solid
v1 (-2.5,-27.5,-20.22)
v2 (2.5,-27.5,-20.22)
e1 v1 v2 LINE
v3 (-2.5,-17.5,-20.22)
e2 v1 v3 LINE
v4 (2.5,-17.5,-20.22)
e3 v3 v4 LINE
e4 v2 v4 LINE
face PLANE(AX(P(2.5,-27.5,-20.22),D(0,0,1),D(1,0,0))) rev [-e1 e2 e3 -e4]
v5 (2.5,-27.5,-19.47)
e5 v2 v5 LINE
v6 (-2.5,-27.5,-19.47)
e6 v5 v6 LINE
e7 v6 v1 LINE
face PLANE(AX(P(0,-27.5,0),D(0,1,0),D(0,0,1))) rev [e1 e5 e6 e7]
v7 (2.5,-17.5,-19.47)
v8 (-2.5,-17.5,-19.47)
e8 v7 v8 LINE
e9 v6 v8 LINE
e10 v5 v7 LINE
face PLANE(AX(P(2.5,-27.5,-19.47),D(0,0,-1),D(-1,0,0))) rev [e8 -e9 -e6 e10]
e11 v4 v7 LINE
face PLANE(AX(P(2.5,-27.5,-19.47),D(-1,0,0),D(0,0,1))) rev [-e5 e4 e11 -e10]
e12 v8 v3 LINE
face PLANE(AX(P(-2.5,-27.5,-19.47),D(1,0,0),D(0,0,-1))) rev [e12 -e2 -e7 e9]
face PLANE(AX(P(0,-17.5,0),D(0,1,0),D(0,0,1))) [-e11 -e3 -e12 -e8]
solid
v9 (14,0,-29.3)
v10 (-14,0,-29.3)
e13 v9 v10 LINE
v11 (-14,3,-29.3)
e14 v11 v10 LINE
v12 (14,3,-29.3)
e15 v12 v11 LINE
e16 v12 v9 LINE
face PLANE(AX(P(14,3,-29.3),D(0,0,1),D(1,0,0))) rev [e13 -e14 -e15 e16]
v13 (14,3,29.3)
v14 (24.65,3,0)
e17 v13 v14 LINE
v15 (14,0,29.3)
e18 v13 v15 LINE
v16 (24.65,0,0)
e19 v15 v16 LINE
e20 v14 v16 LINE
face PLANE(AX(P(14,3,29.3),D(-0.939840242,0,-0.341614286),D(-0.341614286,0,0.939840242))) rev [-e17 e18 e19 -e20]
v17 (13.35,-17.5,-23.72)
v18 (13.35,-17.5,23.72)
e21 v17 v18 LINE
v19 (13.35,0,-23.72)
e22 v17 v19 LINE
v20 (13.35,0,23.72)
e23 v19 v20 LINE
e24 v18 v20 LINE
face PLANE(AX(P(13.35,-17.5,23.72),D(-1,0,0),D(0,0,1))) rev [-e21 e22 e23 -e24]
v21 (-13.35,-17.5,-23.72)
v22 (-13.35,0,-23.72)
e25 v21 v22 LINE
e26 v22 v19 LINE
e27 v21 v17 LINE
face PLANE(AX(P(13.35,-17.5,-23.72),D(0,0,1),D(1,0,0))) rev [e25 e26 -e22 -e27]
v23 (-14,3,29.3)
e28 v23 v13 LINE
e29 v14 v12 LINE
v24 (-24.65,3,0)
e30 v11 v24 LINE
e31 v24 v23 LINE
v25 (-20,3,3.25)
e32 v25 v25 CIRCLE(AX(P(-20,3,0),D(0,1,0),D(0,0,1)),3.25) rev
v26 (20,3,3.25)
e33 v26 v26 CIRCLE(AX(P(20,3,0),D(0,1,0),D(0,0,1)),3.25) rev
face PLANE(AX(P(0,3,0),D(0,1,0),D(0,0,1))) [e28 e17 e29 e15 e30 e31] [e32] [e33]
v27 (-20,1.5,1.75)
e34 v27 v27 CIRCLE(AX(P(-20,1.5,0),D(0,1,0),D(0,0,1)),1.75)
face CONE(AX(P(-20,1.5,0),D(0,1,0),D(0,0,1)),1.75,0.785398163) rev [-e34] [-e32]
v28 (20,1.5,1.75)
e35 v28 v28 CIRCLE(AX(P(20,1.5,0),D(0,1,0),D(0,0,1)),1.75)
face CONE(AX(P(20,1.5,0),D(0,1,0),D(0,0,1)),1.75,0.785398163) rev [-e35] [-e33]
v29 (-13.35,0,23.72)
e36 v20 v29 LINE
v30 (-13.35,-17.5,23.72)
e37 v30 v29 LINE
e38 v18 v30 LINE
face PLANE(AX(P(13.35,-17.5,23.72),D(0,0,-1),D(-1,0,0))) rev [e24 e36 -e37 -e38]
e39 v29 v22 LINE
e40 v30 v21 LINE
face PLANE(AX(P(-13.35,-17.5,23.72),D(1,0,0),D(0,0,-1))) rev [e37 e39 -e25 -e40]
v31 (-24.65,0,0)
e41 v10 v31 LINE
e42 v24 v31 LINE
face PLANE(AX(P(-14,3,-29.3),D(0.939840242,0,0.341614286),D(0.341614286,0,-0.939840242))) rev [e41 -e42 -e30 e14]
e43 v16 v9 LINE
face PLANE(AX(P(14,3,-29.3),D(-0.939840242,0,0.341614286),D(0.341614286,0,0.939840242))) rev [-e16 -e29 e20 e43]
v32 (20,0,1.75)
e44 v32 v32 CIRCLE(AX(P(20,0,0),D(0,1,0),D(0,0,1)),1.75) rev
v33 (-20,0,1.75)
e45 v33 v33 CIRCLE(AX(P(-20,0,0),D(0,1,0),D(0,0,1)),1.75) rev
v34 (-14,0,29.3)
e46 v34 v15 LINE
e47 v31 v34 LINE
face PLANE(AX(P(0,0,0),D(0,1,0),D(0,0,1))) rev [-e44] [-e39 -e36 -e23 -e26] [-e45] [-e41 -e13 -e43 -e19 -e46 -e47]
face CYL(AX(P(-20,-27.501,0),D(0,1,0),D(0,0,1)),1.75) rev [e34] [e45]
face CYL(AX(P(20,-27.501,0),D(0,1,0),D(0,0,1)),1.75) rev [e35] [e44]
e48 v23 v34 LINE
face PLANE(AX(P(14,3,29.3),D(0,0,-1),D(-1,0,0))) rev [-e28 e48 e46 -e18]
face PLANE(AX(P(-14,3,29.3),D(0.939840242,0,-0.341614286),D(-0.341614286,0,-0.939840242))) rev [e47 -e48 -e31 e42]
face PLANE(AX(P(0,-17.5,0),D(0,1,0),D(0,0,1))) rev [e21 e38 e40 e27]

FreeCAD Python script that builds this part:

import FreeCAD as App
import Part
import Sketcher
Q = App.Units.Quantity


def edges_at(feature, points):
    """Names of the edges that pass closest to the given points."""
    edges = feature.Shape.Edges
    near = lambda p: min(range(len(edges)), key=lambda i: edges[i].distToShape(Part.Vertex(*p))[0])
    return sorted({f"Edge{near(p) + 1}" for p in points})

doc = App.newDocument("Part")
params = doc.addObject("Spreadsheet::Sheet", "Params")
for row, (alias, value) in enumerate([
    ("sketch1_width", "28 mm"),
    ("pad1_length", "3 mm"),
    ("sketch2_width", "26.7 mm"),
    ("sketch2_height", "47.44 mm"),
    ("pad2_length", "17.5 mm"),
    ("sketch3_diameter", "3.5 mm"),
    ("pocket1_length", "3 mm"),
    ("chamfer_size", "1.5 mm"),
    ("sketch4_width", "5 mm"),
    ("sketch4_height", "0.75 mm"),
    ("pad3_length", "10 mm"),
], start=1):
    params.set(f"A{row}", alias)
    params.set(f"B{row}", "=" + value)
    params.setAlias(f"B{row}", alias)

body = doc.addObject("PartDesign::Body", "Body")

# Sketch on XZ plane
sketch1 = body.newObject("Sketcher::SketchObject", "Sketch")
sketch1.AttachmentSupport = (doc.getObject("XZ_Plane"), [""])
sketch1.MapMode = "FlatFace"
sketch1.addGeometry([
    Part.LineSegment(App.Vector(14, -29.3, 0), App.Vector(-14, -29.3, 0)),  # 0
    Part.LineSegment(App.Vector(-14, -29.3, 0), App.Vector(-24.65, 0, 0)),  # 1
    Part.LineSegment(App.Vector(-24.65, 0, 0), App.Vector(-14, 29.3, 0)),  # 2
    Part.LineSegment(App.Vector(-14, 29.3, 0), App.Vector(14, 29.3, 0)),  # 3
    Part.LineSegment(App.Vector(14, 29.3, 0), App.Vector(24.65, 0, 0)),  # 4
    Part.LineSegment(App.Vector(24.65, 0, 0), App.Vector(14, -29.3, 0)),  # 5
], False)
sketch1.addConstraint([
    Sketcher.Constraint("Coincident", 0, 2, 1, 1),
    Sketcher.Constraint("Coincident", 1, 2, 2, 1),
    Sketcher.Constraint("Coincident", 2, 2, 3, 1),
    Sketcher.Constraint("Coincident", 3, 2, 4, 1),
    Sketcher.Constraint("Coincident", 4, 2, 5, 1),
    Sketcher.Constraint("Coincident", 5, 2, 0, 1),
    Sketcher.Constraint("Horizontal", 0),
    Sketcher.Constraint("Horizontal", 3),
    Sketcher.Constraint("Symmetric", 0, 2, 3, 2, -1, 1),
    Sketcher.Constraint("Symmetric", 1, 2, 4, 2, -1, 1),
    Sketcher.Constraint("PointOnObject", 1, 2, -1),
    Sketcher.Constraint("Parallel", 2, 5),
    Sketcher.Constraint("Vertical", 0, 2, 2, 2),
    Sketcher.Constraint("DistanceX", 0, 2, 0, 1, Q("28 mm")),
    Sketcher.Constraint("DistanceY", 0, 2, -1, 1, Q("29.3 mm")),
    Sketcher.Constraint("DistanceX", 1, 2, 4, 2, Q("49.3 mm")),
])
sketch1.setExpression("Constraints[13]", "Params.sketch1_width")
pad1 = body.newObject("PartDesign::Pad", "Pad")
pad1.Profile = sketch1
pad1.setExpression("Length", "Params.pad1_length")
pad1.Reversed = True

# Sketch on XZ plane
sketch2 = body.newObject("Sketcher::SketchObject", "Sketch001")
sketch2.AttachmentSupport = (doc.getObject("XZ_Plane"), [""])
sketch2.MapMode = "FlatFace"
sketch2.addGeometry([
    Part.LineSegment(App.Vector(-13.35, 23.72, 0), App.Vector(-13.35, -23.72, 0)),
    Part.LineSegment(App.Vector(-13.35, -23.72, 0), App.Vector(13.35, -23.72, 0)),
    Part.LineSegment(App.Vector(13.35, -23.72, 0), App.Vector(13.35, 23.72, 0)),
    Part.LineSegment(App.Vector(13.35, 23.72, 0), App.Vector(-13.35, 23.72, 0)),
], False)
sketch2.addConstraint([
    Sketcher.Constraint("Coincident", 0, 2, 1, 1),
    Sketcher.Constraint("Coincident", 1, 2, 2, 1),
    Sketcher.Constraint("Coincident", 2, 2, 3, 1),
    Sketcher.Constraint("Coincident", 3, 2, 0, 1),
    Sketcher.Constraint("Vertical", 0),
    Sketcher.Constraint("Horizontal", 1),
    Sketcher.Constraint("Vertical", 2),
    Sketcher.Constraint("Horizontal", 3),
    Sketcher.Constraint("Symmetric", 0, 2, 2, 2, -1, 1),
    Sketcher.Constraint("DistanceX", 1, 1, 1, 2, Q("26.7 mm")),
    Sketcher.Constraint("DistanceY", 0, 2, 0, 1, Q("47.44 mm")),
])
sketch2.setExpression("Constraints[9]", "Params.sketch2_width")
sketch2.setExpression("Constraints[10]", "Params.sketch2_height")
pad2 = body.newObject("PartDesign::Pad", "Pad001")
pad2.Profile = sketch2
pad2.setExpression("Length", "Params.pad2_length")

# Sketch on XZ plane
sketch3 = body.newObject("Sketcher::SketchObject", "Sketch002")
sketch3.AttachmentSupport = (doc.getObject("XZ_Plane"), [""])
sketch3.MapMode = "FlatFace"
sketch3.AttachmentOffset = App.Placement(App.Vector(0, 0, -3), App.Rotation())
sketch3.addGeometry([
    Part.Circle(App.Vector(20, 0, 0), App.Vector(0, 0, 1), 1.75),
    Part.Circle(App.Vector(-20, 0, 0), App.Vector(0, 0, 1), 1.75),
], False)
sketch3.addConstraint([
    Sketcher.Constraint("Equal", 0, 1),
    Sketcher.Constraint("Symmetric", 0, 3, 1, 3, -1, 1),
    Sketcher.Constraint("PointOnObject", 0, 3, -1),
    Sketcher.Constraint("Diameter", 0, Q("3.5 mm")),
    Sketcher.Constraint("DistanceX", -1, 1, 0, 3, Q("20 mm")),
])
sketch3.setExpression("Constraints[3]", "Params.sketch3_diameter")
pocket1 = body.newObject("PartDesign::Pocket", "Pocket")
pocket1.Profile = sketch3
pocket1.setExpression("Length", "Params.pocket1_length")
pocket1.Reversed = True
doc.recompute()

chamfer = body.newObject("PartDesign::Chamfer", "Chamfer")
chamfer.Base = (pocket1, edges_at(pocket1, [(18.25, 3, 0), (-21.75, 3, 0)]))
chamfer.setExpression("Size", "Params.chamfer_size")
body2 = doc.addObject("PartDesign::Body", "Body001")

# Sketch on XZ plane
sketch4 = body2.newObject("Sketcher::SketchObject", "Sketch003")
sketch4.AttachmentSupport = (doc.getObject("XZ_Plane001"), [""])
sketch4.MapMode = "FlatFace"
sketch4.AttachmentOffset = App.Placement(App.Vector(0, 0, 17.5), App.Rotation())
sketch4.addGeometry([
    Part.LineSegment(App.Vector(-2.5, -19.47, 0), App.Vector(-2.5, -20.22, 0)),
    Part.LineSegment(App.Vector(-2.5, -20.22, 0), App.Vector(2.5, -20.22, 0)),
    Part.LineSegment(App.Vector(2.5, -20.22, 0), App.Vector(2.5, -19.47, 0)),
    Part.LineSegment(App.Vector(2.5, -19.47, 0), App.Vector(-2.5, -19.47, 0)),
], False)
sketch4.addConstraint([
    Sketcher.Constraint("Coincident", 0, 2, 1, 1),
    Sketcher.Constraint("Coincident", 1, 2, 2, 1),
    Sketcher.Constraint("Coincident", 2, 2, 3, 1),
    Sketcher.Constraint("Coincident", 3, 2, 0, 1),
    Sketcher.Constraint("Vertical", 0),
    Sketcher.Constraint("Horizontal", 1),
    Sketcher.Constraint("Vertical", 2),
    Sketcher.Constraint("Horizontal", 3),
    Sketcher.Constraint("DistanceX", 1, 1, 1, 2, Q("5 mm")),
    Sketcher.Constraint("DistanceY", 0, 2, 0, 1, Q("0.75 mm")),
    Sketcher.Constraint("DistanceX", 0, 2, -1, 1, Q("2.5 mm")),
    Sketcher.Constraint("DistanceY", 0, 2, -1, 1, Q("20.22 mm")),
])
sketch4.setExpression("Constraints[8]", "Params.sketch4_width")
sketch4.setExpression("Constraints[9]", "Params.sketch4_height")
pad3 = body2.newObject("PartDesign::Pad", "Pad002")
pad3.Profile = sketch4
pad3.setExpression("Length", "Params.pad3_length")

doc.recompute()
